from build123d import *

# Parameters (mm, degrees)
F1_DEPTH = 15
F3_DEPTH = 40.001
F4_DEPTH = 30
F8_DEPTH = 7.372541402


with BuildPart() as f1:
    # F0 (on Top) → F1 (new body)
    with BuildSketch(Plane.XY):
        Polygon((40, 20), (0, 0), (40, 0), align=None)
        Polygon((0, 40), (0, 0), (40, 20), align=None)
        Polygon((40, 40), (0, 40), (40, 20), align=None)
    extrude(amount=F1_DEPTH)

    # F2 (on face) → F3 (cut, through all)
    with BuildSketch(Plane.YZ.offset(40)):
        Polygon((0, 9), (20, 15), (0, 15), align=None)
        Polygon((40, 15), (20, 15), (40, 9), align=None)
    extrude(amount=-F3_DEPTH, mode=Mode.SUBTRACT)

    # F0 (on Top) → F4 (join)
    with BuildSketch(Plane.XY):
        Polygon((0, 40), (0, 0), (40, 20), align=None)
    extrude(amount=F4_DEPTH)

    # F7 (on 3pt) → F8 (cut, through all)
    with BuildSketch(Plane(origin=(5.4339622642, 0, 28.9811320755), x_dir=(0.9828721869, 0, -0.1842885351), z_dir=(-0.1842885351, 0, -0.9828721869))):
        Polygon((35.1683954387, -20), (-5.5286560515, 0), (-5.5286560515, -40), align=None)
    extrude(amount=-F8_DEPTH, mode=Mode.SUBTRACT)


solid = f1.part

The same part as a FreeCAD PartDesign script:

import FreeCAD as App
import Part
import Sketcher


def add_polygon(sketch, points):
    """Adds a closed chain of lines whose ends are joined by coincident constraints."""
    first, n = sketch.GeometryCount, len(points)
    for a, b in zip(points, points[1:] + points[:1]):
        sketch.addGeometry(Part.LineSegment(App.Vector(*a, 0), App.Vector(*b, 0)), False)
    for i in range(n):
        sketch.addConstraint(Sketcher.Constraint("Coincident", first + i, 2, first + (i + 1) % n, 1))

doc = App.newDocument("Part")
body = doc.addObject("PartDesign::Body", "Body")

sketch1 = body.newObject("Sketcher::SketchObject", "Sketch")
sketch1.AttachmentSupport = (doc.getObject("XY_Plane"), [""])
sketch1.MapMode = "FlatFace"
add_polygon(sketch1, [(0, 0), (40, 0), (40, 40), (0, 40)])
sketch1.addConstraint([
    Sketcher.Constraint("Horizontal", 0),
    Sketcher.Constraint("Vertical", 1),
    Sketcher.Constraint("Horizontal", 2),
    Sketcher.Constraint("Vertical", 3),
    Sketcher.Constraint("Coincident", 3, 2, -1, 1),
    Sketcher.Constraint("Equal", 2, 1),
    Sketcher.Constraint("DistanceX", 0, 1, 0, 2, 40.0),
])
pad1 = body.newObject("PartDesign::Pad", "Pad")
pad1.Profile = sketch1
pad1.Length = 15

sketch2 = body.newObject("Sketcher::SketchObject", "Sketch001")
sketch2.AttachmentSupport = (doc.getObject("YZ_Plane"), [""])
sketch2.MapMode = "FlatFace"
sketch2.AttachmentOffset = App.Placement(App.Vector(0, 0, 40), App.Rotation())
add_polygon(sketch2, [(0, 9), (20, 15), (0, 15)])
add_polygon(sketch2, [(40, 15), (20, 15), (40, 9)])
sketch2.addConstraint([
    Sketcher.Constraint("Horizontal", 1),
    Sketcher.Constraint("Vertical", 2),
    Sketcher.Constraint("Horizontal", 3),
    Sketcher.Constraint("Vertical", 5),
    Sketcher.Constraint("Coincident", 3, 2, 0, 2),
    Sketcher.Constraint("PointOnObject", 1, 2, -2),
    Sketcher.Constraint("Horizontal", 2, 2, 4, 2),
    Sketcher.Constraint("Equal", 1, 3),
    Sketcher.Constraint("DistanceX", 1, 2, 1, 1, 20.0),
    Sketcher.Constraint("DistanceY", 2, 2, 2, 1, 6.0),
    Sketcher.Constraint("DistanceY", -1, 1, 0, 2, 15.0),
])
pocket1 = body.newObject("PartDesign::Pocket", "Pocket")
pocket1.Profile = sketch2
pocket1.Type = "ThroughAll"

sketch3 = body.newObject("Sketcher::SketchObject", "Sketch002")
sketch3.AttachmentSupport = (doc.getObject("XY_Plane"), [""])
sketch3.MapMode = "FlatFace"
add_polygon(sketch3, [(0, 40), (0, 0), (40, 20)])
sketch3.addConstraint([
    Sketcher.Constraint("Vertical", 0),
    Sketcher.Constraint("Coincident", 0, 2, -1, 1),
    Sketcher.Constraint("Equal", 1, 2),
    Sketcher.Constraint("DistanceY", 0, 2, 0, 1, 40.0),
    Sketcher.Constraint("DistanceX", -1, 1, 1, 2, 40.0),
])
pad2 = body.newObject("PartDesign::Pad", "Pad001")
pad2.Profile = sketch3
pad2.Length = 30

sketch4 = body.newObject("Sketcher::SketchObject", "Sketch003")
sketch4.Placement = App.Placement(App.Vector(5.433962, 0, 28.981132), App.Rotation(App.Vector(0.982872187, 0, -0.184288535), App.Vector(0, -1, 0), App.Vector(-0.184288535, 0, -0.982872187), "ZXY"))
add_polygon(sketch4, [(35, -20), (-6, 0), (-6, -40)])
sketch4.addConstraint([
    Sketcher.Constraint("Vertical", 1),
    Sketcher.Constraint("PointOnObject", 0, 2, -1),
    Sketcher.Constraint("Equal", 0, 2),
    Sketcher.Constraint("DistanceY", 1, 2, 1, 1, 40.0),
    Sketcher.Constraint("DistanceX", 1, 2, 2, 2, 40.697051),
    Sketcher.Constraint("DistanceX", 0, 2, -1, 1, 5.528656),
])
pocket2 = body.newObject("PartDesign::Pocket", "Pocket001")
pocket2.Profile = sketch4
pocket2.Type = "ThroughAll"

doc.recompute()
